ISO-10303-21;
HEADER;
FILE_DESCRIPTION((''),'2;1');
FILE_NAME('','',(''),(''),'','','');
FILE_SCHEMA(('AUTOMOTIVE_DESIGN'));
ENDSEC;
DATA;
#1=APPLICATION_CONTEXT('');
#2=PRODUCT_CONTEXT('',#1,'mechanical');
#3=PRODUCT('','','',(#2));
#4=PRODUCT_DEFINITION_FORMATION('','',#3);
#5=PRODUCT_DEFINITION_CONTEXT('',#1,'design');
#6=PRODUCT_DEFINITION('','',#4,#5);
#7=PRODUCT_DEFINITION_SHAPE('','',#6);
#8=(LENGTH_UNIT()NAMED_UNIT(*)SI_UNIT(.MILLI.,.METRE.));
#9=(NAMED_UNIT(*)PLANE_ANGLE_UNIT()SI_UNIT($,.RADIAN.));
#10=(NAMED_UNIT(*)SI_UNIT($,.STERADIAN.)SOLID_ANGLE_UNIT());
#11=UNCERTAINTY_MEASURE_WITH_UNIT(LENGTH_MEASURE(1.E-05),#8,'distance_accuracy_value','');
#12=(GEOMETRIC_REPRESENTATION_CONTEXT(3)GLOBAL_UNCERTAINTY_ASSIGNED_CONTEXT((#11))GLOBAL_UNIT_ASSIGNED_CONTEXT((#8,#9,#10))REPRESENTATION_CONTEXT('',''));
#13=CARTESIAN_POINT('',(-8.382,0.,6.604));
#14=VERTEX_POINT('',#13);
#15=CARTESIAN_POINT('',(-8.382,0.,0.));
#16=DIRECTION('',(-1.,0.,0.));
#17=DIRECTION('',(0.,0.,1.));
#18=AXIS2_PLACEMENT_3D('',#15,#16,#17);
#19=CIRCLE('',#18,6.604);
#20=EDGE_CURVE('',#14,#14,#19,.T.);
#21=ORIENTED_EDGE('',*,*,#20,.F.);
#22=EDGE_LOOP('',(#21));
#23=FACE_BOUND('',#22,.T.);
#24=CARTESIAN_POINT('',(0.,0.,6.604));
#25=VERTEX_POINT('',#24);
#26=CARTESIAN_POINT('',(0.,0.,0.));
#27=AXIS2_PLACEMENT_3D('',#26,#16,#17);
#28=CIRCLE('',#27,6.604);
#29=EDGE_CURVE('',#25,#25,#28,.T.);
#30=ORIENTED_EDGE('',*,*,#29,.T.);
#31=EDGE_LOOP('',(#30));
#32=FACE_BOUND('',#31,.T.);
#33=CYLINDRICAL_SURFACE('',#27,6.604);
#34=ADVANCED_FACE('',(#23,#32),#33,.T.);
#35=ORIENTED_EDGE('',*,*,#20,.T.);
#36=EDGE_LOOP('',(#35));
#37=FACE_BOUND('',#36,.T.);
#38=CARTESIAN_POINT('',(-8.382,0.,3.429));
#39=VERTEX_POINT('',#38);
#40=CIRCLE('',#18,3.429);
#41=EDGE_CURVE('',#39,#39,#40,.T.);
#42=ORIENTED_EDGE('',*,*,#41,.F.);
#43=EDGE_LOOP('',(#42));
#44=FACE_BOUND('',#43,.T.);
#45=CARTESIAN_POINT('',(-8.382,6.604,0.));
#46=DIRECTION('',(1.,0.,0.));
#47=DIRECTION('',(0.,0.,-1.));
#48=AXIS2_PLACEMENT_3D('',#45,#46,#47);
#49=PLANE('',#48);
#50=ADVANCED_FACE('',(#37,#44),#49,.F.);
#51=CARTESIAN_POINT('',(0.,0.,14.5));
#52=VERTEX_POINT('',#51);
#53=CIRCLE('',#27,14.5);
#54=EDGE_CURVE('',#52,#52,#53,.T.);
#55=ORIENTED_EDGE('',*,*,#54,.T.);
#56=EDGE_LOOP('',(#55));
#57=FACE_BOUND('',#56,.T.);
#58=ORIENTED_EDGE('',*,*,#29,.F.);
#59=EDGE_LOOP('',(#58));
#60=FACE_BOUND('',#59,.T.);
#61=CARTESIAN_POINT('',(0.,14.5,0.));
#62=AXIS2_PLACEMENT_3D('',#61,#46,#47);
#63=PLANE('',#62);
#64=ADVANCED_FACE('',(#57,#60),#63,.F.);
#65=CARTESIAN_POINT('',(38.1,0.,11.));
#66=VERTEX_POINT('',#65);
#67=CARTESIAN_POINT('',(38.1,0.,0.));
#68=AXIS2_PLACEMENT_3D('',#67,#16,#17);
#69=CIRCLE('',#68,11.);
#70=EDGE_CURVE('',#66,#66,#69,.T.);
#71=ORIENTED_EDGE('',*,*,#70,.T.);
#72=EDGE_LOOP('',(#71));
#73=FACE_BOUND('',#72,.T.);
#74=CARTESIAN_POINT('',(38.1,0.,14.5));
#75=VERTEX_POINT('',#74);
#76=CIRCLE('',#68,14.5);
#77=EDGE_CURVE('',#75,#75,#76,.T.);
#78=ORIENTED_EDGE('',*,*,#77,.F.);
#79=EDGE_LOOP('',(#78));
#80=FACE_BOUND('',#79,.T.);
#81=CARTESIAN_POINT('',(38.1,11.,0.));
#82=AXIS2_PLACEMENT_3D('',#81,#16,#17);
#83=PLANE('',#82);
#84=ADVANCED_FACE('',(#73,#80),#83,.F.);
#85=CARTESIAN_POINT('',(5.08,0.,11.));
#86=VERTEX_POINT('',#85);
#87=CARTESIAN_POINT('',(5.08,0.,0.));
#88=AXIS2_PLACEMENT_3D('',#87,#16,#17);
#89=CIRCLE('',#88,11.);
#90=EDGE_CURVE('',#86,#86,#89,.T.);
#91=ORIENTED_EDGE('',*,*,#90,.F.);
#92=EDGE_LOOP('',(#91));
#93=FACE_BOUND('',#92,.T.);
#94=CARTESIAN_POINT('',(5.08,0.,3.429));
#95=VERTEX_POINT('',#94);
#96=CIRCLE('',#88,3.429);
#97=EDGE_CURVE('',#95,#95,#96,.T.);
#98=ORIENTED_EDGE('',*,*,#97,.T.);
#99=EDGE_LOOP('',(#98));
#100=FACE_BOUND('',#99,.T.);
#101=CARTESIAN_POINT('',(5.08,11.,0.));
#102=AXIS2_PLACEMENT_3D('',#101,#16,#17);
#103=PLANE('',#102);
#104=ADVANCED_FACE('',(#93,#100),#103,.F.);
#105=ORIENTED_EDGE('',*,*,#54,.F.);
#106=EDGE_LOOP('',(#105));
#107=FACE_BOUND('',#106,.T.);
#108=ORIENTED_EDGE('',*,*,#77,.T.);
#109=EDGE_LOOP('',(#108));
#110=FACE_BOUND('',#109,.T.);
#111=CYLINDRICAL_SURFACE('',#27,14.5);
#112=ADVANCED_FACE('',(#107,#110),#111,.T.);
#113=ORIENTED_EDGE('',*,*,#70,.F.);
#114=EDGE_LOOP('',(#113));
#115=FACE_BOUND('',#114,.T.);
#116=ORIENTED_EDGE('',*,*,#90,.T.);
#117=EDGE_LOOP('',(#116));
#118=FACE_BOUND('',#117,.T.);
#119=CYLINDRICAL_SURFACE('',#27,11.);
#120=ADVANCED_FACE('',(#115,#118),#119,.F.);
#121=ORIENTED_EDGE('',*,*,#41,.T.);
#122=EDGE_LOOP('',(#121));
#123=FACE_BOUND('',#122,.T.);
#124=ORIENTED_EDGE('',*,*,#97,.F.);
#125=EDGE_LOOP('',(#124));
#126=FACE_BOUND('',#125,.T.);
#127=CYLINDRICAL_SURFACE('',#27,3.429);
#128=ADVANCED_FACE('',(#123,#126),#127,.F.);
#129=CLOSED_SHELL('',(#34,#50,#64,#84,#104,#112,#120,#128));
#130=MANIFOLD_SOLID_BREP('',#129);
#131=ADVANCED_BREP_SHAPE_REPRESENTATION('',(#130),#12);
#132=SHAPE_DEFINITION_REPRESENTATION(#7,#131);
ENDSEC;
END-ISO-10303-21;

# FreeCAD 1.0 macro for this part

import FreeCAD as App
import Part
import Sketcher
from FreeCAD import Vector
Q = App.Units.Quantity


def add_polygon(sketch, points):
    """Adds a closed chain of lines whose ends are joined by coincident constraints."""
    first, n = sketch.GeometryCount, len(points)
    for a, b in zip(points, points[1:] + points[:1]):
        sketch.addGeometry(Part.LineSegment(App.Vector(*a, 0), App.Vector(*b, 0)), False)
    for i in range(n):
        sketch.addConstraint(Sketcher.Constraint("Coincident", first + i, 2, first + (i + 1) % n, 1))

doc = App.newDocument("Part")
body = doc.addObject("PartDesign::Body", "Body")

# Sketch on XY plane
sketch1 = body.newObject("Sketcher::SketchObject", "Sketch")
sketch1.AttachmentSupport = (doc.getObject("XY_Plane"), [""])
sketch1.MapMode = "FlatFace"
add_polygon(sketch1, [(38.1, 11), (38.1, 14.5), (0, 14.5), (0, 6.6), (-8.4, 6.6), (-8.4, 3.4), (5.1, 3.4), (5.1, 11)])  # lines 0-7
sketch1.addConstraint([
    Sketcher.Constraint("Vertical", 0),
    Sketcher.Constraint("Horizontal", 1),
    Sketcher.Constraint("Vertical", 2),
    Sketcher.Constraint("Horizontal", 3),
    Sketcher.Constraint("Vertical", 4),
    Sketcher.Constraint("Horizontal", 5),
    Sketcher.Constraint("Vertical", 6),
    Sketcher.Constraint("Horizontal", 7),
    Sketcher.Constraint("PointOnObject", 1, 2, -2),
    Sketcher.Constraint("DistanceX", 1, 2, 1, 1, Q("1.5 in")),
    Sketcher.Constraint("DistanceX", 7, 1, 7, 2, Q("1.3 in")),
    Sketcher.Constraint("DistanceX", 3, 2, 3, 1, Q("0.33 in")),
    Sketcher.Constraint("DistanceY", 4, 2, 4, 1, Q("0.125 in")),
    Sketcher.Constraint("DistanceY", -1, 1, 2, 2, Q("0.26 in")),
    Sketcher.Constraint("DistanceY", 0, 1, 0, 2, 3.5),
    Sketcher.Constraint("DistanceY", 2, 2, 2, 1, 7.896),
])
revolution = body.newObject("PartDesign::Revolution", "Revolution")
revolution.Profile = sketch1
revolution.ReferenceAxis = (sketch1, ["H_Axis"])
revolution.Angle = 360

doc.recompute()
